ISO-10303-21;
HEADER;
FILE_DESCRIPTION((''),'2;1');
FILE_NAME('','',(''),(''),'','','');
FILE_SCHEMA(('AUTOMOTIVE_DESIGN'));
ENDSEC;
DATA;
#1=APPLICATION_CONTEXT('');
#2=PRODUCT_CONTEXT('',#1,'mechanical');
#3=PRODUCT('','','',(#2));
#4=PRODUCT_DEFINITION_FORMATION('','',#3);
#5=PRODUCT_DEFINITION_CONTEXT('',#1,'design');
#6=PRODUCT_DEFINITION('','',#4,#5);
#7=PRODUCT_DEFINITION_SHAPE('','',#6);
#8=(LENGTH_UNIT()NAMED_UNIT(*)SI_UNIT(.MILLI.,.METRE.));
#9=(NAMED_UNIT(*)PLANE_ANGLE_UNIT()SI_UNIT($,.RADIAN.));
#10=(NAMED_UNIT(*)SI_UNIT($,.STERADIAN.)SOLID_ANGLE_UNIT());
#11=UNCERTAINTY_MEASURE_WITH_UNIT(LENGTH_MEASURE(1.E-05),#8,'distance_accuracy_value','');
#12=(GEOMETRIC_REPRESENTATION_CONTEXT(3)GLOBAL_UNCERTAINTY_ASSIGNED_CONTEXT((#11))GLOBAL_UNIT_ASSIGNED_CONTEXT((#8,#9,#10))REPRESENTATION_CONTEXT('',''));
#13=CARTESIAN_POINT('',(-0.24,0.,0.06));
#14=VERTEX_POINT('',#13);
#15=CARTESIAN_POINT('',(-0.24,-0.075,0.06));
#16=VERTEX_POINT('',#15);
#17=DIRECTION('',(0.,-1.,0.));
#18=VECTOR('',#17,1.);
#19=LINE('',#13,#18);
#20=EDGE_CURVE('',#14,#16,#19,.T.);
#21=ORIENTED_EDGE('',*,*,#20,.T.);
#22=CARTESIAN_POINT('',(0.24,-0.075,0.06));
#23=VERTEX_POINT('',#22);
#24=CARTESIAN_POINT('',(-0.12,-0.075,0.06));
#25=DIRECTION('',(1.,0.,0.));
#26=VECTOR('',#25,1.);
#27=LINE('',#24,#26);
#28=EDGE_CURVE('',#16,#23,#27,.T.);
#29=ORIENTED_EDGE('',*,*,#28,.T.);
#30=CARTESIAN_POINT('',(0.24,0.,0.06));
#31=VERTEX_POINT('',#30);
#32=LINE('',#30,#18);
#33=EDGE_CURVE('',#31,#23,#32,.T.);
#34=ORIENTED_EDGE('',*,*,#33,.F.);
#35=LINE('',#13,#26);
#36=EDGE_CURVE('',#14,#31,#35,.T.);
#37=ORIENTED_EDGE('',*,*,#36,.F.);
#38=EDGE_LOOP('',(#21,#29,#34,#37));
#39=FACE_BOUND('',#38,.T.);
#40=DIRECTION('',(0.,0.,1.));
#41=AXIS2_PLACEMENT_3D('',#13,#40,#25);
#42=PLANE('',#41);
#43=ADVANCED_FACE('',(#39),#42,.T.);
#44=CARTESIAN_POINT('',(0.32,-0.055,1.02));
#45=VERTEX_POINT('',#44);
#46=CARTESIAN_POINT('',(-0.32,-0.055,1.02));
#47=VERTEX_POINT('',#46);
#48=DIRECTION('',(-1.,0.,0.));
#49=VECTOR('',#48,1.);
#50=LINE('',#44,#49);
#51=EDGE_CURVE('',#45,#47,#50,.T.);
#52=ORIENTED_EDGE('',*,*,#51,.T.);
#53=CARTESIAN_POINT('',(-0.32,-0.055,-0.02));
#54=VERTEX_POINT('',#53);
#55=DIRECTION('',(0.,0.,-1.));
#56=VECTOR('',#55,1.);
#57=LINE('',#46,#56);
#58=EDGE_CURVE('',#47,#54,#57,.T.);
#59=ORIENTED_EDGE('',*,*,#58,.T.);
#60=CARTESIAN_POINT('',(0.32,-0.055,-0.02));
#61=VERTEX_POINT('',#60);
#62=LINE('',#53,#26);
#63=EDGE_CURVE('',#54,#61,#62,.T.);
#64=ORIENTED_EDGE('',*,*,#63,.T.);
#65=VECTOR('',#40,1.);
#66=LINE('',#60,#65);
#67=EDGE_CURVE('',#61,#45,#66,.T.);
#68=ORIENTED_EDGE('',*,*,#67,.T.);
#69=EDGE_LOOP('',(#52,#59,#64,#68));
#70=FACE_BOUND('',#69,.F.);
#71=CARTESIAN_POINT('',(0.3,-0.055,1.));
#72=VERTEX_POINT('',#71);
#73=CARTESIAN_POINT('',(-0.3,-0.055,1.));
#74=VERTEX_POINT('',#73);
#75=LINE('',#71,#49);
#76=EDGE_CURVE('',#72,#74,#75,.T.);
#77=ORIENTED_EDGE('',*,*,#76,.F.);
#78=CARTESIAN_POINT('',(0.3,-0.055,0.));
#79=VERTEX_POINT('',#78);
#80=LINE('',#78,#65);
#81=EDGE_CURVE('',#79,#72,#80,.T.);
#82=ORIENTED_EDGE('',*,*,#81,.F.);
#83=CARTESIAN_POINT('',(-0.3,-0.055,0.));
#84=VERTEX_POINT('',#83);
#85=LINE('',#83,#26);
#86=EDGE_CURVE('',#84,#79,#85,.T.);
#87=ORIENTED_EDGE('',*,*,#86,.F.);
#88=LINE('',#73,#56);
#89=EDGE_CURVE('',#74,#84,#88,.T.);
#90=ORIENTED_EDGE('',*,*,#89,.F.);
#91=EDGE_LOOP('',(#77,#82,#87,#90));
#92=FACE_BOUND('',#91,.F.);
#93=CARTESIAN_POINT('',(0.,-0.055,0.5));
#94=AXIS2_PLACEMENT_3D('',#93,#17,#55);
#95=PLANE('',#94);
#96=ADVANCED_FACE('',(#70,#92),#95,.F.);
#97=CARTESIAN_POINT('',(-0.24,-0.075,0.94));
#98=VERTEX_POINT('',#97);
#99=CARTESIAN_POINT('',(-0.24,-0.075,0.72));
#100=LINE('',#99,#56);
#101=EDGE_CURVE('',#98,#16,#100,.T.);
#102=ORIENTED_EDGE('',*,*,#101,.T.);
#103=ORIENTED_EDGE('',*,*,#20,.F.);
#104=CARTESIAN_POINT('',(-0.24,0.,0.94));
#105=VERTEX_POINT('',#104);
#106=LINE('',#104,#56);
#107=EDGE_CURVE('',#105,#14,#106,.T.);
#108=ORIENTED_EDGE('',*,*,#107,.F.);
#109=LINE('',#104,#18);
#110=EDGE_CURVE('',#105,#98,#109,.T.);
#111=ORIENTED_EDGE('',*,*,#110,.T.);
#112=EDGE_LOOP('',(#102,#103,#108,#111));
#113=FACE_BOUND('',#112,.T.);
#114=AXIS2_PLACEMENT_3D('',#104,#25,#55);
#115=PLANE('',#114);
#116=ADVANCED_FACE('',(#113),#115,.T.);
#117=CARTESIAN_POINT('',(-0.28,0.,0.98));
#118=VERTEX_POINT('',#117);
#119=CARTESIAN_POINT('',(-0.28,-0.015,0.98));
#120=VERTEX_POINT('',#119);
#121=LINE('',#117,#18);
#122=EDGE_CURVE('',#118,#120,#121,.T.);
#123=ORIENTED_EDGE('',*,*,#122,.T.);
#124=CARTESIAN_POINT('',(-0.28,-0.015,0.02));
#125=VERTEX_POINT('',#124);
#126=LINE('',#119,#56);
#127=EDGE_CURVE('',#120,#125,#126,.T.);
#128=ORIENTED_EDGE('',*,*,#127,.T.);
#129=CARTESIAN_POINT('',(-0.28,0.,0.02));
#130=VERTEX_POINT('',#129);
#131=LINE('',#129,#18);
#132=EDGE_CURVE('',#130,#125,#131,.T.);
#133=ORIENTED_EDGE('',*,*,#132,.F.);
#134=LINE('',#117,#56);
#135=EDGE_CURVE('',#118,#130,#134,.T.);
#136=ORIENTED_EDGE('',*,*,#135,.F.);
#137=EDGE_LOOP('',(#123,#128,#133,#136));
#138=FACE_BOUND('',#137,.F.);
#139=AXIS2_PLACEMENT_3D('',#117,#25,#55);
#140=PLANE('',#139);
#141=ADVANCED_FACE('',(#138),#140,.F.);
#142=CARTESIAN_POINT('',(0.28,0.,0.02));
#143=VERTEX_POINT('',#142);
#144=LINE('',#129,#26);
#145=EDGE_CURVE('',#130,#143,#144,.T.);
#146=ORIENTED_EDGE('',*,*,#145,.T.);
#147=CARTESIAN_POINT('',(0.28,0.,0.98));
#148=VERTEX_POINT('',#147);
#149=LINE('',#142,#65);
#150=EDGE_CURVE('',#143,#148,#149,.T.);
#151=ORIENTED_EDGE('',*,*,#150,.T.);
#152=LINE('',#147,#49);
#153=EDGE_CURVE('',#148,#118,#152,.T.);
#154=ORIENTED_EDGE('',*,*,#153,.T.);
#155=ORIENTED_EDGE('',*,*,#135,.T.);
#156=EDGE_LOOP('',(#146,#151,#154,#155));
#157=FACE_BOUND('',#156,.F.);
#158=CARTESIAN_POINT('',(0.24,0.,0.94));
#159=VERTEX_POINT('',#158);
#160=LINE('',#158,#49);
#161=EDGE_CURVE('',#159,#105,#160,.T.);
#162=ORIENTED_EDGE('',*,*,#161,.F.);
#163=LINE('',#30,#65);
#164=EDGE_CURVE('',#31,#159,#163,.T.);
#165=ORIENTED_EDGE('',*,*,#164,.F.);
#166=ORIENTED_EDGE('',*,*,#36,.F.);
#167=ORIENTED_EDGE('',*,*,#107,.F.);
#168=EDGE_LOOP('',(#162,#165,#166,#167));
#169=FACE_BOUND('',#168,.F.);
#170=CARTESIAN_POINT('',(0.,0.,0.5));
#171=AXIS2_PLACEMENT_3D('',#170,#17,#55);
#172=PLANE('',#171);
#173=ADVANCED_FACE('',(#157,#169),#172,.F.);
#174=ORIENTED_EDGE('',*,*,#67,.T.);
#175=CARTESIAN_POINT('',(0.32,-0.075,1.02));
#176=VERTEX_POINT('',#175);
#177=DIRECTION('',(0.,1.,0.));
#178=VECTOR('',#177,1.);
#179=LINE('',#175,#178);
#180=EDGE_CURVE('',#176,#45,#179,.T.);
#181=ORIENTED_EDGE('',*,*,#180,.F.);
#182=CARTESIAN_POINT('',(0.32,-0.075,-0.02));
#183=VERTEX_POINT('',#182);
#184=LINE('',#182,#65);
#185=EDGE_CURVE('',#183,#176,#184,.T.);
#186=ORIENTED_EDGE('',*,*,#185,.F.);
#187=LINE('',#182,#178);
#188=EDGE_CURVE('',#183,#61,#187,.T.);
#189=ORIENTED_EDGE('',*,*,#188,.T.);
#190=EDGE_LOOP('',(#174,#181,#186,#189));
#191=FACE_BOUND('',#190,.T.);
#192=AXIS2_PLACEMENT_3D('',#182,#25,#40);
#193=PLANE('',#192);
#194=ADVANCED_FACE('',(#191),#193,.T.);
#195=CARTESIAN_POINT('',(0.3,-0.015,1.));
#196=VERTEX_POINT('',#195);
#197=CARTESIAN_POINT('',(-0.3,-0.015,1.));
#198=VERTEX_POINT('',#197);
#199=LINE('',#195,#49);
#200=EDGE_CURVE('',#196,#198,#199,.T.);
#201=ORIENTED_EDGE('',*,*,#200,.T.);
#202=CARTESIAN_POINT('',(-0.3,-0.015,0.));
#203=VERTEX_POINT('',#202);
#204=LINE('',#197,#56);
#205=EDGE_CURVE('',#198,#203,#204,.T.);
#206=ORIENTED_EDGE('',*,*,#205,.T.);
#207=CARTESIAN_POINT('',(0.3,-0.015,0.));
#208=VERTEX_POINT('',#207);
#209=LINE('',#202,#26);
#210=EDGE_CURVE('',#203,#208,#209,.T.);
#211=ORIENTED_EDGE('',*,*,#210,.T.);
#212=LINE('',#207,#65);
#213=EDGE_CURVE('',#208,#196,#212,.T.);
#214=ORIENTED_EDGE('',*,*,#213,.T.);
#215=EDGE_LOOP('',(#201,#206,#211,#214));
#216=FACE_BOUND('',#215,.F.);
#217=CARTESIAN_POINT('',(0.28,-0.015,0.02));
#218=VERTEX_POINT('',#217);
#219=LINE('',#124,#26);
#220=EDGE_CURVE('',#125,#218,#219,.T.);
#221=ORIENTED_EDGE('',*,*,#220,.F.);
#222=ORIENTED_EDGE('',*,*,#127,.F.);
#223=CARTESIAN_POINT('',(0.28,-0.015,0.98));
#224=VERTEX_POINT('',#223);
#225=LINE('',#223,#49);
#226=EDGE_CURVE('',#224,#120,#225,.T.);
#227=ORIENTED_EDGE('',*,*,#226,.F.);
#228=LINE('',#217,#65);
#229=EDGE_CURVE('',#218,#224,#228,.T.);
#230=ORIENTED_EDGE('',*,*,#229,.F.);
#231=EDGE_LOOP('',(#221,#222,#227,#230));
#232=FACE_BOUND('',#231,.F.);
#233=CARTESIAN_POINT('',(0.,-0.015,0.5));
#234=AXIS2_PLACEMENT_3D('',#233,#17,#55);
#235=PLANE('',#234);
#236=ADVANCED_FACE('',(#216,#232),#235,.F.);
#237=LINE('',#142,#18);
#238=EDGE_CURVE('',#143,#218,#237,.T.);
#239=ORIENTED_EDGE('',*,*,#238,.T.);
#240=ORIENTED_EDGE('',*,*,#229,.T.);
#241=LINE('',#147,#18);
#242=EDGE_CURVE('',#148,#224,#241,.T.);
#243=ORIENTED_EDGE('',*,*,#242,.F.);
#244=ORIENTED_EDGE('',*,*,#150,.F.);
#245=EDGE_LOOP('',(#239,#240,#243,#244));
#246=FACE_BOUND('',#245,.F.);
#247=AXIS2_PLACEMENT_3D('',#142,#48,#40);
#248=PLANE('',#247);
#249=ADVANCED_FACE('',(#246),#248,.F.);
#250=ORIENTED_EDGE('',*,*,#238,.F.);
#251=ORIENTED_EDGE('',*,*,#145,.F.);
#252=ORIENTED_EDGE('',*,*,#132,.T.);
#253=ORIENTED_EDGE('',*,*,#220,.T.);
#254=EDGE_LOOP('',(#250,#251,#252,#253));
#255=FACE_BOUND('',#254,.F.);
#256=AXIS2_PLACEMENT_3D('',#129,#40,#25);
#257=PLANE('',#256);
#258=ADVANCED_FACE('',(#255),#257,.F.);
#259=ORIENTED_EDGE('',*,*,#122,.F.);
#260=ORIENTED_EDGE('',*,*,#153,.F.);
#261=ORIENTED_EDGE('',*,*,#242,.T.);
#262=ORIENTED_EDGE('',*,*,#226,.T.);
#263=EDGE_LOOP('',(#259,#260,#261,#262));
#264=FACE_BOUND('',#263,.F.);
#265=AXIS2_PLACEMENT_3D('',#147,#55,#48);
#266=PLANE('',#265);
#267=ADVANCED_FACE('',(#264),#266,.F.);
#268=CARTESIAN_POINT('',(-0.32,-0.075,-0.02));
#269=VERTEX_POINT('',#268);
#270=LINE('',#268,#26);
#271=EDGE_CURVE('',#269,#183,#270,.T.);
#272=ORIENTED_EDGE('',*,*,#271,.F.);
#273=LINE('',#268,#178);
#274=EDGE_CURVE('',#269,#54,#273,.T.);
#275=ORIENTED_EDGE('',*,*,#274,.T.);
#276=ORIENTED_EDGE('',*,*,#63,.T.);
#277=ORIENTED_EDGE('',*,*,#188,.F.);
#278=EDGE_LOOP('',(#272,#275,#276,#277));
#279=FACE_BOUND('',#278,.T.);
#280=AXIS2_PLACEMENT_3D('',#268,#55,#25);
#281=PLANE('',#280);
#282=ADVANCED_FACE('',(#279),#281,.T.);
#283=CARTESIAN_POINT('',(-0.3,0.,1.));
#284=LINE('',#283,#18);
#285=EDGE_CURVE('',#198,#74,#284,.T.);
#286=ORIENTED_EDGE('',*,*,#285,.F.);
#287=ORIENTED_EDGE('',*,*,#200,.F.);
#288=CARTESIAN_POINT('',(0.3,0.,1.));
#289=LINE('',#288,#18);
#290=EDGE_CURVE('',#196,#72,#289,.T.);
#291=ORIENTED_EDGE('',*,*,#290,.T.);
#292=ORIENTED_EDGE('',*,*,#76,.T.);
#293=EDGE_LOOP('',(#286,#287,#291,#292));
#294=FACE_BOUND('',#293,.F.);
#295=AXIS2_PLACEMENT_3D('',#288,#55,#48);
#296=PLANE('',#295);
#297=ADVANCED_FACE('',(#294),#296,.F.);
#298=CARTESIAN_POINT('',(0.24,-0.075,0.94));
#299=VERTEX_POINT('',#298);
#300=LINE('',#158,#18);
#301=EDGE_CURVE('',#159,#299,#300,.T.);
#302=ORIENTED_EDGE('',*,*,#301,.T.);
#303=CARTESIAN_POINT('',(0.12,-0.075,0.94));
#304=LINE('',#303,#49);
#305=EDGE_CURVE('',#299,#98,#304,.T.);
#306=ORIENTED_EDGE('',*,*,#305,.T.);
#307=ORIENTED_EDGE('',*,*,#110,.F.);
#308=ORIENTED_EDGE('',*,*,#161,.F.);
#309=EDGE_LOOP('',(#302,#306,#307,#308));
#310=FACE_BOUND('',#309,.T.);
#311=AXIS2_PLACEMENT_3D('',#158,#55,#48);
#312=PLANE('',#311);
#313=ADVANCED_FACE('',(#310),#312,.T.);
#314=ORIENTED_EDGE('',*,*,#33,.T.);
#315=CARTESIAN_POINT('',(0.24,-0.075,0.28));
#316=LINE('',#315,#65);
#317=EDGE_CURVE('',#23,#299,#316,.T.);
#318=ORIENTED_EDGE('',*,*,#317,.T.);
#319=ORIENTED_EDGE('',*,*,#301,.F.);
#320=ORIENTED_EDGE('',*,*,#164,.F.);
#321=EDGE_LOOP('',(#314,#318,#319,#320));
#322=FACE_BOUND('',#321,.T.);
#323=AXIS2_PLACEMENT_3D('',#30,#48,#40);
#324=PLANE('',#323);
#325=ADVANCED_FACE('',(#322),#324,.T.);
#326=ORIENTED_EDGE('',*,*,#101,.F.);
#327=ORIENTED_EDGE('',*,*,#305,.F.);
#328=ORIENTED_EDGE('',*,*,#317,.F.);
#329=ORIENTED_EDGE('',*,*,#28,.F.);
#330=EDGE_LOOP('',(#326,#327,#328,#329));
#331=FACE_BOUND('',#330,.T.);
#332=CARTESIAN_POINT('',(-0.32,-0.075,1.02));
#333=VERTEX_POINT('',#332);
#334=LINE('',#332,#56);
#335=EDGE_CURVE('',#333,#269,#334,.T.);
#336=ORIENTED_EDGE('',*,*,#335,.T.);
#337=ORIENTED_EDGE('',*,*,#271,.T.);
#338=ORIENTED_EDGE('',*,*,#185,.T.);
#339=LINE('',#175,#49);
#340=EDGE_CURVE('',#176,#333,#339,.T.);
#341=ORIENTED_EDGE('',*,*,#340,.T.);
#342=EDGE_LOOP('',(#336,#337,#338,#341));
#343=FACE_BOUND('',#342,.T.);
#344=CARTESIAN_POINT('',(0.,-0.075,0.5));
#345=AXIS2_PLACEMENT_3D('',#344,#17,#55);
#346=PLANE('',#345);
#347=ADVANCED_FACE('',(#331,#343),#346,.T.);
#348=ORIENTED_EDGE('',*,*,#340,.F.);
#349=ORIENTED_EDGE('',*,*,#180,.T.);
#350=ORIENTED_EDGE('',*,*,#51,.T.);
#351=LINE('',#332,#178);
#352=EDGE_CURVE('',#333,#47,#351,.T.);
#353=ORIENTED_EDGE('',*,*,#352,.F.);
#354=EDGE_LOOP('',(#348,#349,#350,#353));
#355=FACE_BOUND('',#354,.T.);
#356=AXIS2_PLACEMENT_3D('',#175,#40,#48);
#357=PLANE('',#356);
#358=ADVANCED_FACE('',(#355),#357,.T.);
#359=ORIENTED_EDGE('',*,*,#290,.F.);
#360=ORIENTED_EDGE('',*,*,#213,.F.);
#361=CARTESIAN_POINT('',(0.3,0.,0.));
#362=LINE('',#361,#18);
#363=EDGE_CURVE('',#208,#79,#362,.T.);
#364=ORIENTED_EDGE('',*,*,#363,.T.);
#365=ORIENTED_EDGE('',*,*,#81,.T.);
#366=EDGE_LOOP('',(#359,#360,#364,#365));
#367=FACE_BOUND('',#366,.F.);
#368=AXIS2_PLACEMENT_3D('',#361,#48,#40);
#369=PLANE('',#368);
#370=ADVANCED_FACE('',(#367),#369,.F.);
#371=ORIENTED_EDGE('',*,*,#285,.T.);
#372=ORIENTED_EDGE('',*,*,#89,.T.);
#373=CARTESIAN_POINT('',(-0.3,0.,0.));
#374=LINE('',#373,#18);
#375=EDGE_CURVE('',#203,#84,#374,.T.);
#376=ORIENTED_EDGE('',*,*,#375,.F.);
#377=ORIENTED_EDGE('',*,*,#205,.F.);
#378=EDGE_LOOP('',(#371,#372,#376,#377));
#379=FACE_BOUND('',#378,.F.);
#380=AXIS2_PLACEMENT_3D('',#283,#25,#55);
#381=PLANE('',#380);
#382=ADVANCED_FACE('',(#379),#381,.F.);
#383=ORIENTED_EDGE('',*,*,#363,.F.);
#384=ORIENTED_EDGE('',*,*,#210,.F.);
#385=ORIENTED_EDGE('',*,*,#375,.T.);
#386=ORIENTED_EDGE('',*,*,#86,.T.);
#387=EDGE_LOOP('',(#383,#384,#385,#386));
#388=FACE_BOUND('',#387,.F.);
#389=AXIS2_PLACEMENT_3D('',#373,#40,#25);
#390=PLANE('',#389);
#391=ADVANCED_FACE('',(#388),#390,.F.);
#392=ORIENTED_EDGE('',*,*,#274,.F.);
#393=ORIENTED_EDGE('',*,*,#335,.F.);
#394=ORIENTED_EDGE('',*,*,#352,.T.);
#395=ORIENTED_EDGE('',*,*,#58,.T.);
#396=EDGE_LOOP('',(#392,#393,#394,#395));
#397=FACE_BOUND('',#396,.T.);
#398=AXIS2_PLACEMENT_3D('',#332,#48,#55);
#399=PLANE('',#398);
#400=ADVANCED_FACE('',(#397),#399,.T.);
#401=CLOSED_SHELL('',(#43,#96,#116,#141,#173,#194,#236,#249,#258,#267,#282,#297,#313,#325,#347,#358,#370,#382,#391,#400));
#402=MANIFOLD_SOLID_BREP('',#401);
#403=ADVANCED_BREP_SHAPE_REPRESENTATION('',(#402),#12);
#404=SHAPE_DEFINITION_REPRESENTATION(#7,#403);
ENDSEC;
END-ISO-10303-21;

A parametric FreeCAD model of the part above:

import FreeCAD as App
import Part
import Sketcher


def add_polygon(sketch, points):
    """Adds a closed chain of lines whose ends are joined by coincident constraints."""
    first, n = sketch.GeometryCount, len(points)
    for a, b in zip(points, points[1:] + points[:1]):
        sketch.addGeometry(Part.LineSegment(App.Vector(*a, 0), App.Vector(*b, 0)), False)
    for i in range(n):
        sketch.addConstraint(Sketcher.Constraint("Coincident", first + i, 2, first + (i + 1) % n, 1))

doc = App.newDocument("Part")
body = doc.addObject("PartDesign::Body", "Body")

# Sketch on XZ plane
sketch1 = body.newObject("Sketcher::SketchObject", "Sketch")
sketch1.AttachmentSupport = (doc.getObject("XZ_Plane"), [""])
sketch1.MapMode = "FlatFace"
add_polygon(sketch1, [(-0.3, 1), (-0.3, 0), (0.3, 0), (0.3, 1)])  # lines 0-3
sketch1.addConstraint(Sketcher.Constraint("Vertical", 0))
sketch1.addConstraint(Sketcher.Constraint("Horizontal", 1))
sketch1.addConstraint(Sketcher.Constraint("Vertical", 2))
sketch1.addConstraint(Sketcher.Constraint("Horizontal", 3))
sketch1.addConstraint(Sketcher.Constraint("Symmetric", 0, 2, 1, 2, -1, 1))
sketch1.addConstraint(Sketcher.Constraint("DistanceX", 0, 2, -1, 1, 0.3))
sketch1.addConstraint(Sketcher.Constraint("DistanceY", 0, 2, 0, 1, 1.0))
pad1 = body.newObject("PartDesign::Pad", "Pad")
pad1.Profile = sketch1
pad1.Length = 0.075

# Sketch on XZ plane
sketch2 = body.newObject("Sketcher::SketchObject", "Sketch001")
sketch2.AttachmentSupport = (doc.getObject("XZ_Plane"), [""])
sketch2.MapMode = "FlatFace"
add_polygon(sketch2, [(-0.24, 0.94), (0.24, 0.94), (0.24, 0.06), (-0.24, 0.06)])  # lines 0-3
sketch2.addConstraint(Sketcher.Constraint("Horizontal", 0))
sketch2.addConstraint(Sketcher.Constraint("Vertical", 1))
sketch2.addConstraint(Sketcher.Constraint("Horizontal", 2))
sketch2.addConstraint(Sketcher.Constraint("Vertical", 3))
sketch2.addConstraint(Sketcher.Constraint("DistanceX", 0, 1, 0, 2, 0.48))
sketch2.addConstraint(Sketcher.Constraint("DistanceY", 1, 2, 1, 1, 0.88))
sketch2.addConstraint(Sketcher.Constraint("DistanceX", -1, 1, 0, 2, 0.24))
sketch2.addConstraint(Sketcher.Constraint("DistanceY", -1, 1, 0, 2, 0.94))
pocket1 = body.newObject("PartDesign::Pocket", "Pocket")
pocket1.Profile = sketch2
pocket1.Type = "UpToFirst"
pocket1.Reversed = True

# Sketch on XZ plane
sketch3 = body.newObject("Sketcher::SketchObject", "Sketch002")
sketch3.AttachmentSupport = (doc.getObject("XZ_Plane"), [""])
sketch3.MapMode = "FlatFace"
add_polygon(sketch3, [(0.3, 1), (0.3, 0), (-0.3, 0), (-0.3, 1)])  # lines 0-3
add_polygon(sketch3, [(-0.28, 0.02), (0.28, 0.02), (0.28, 0.98), (-0.28, 0.98)])  # lines 4-7
sketch3.addConstraint(Sketcher.Constraint("Vertical", 0))
sketch3.addConstraint(Sketcher.Constraint("Horizontal", 1))
sketch3.addConstraint(Sketcher.Constraint("Vertical", 2))
sketch3.addConstraint(Sketcher.Constraint("Horizontal", 3))
sketch3.addConstraint(Sketcher.Constraint("Horizontal", 4))
sketch3.addConstraint(Sketcher.Constraint("Vertical", 5))
sketch3.addConstraint(Sketcher.Constraint("Horizontal", 6))
sketch3.addConstraint(Sketcher.Constraint("Vertical", 7))
sketch3.addConstraint(Sketcher.Constraint("Symmetric", 0, 2, 1, 2, -1, 1))
sketch3.addConstraint(Sketcher.Constraint("DistanceY", 0, 2, 0, 1, 1.0))
sketch3.addConstraint(Sketcher.Constraint("DistanceX", 1, 2, 1, 1, 0.6))
sketch3.addConstraint(Sketcher.Constraint("DistanceX", 4, 1, 4, 2, 0.56))
sketch3.addConstraint(Sketcher.Constraint("DistanceY", 5, 1, 5, 2, 0.96))
sketch3.addConstraint(Sketcher.Constraint("DistanceX", -1, 1, 4, 2, 0.28))
sketch3.addConstraint(Sketcher.Constraint("DistanceY", -1, 1, 4, 2, 0.02))
pocket2 = body.newObject("PartDesign::Pocket", "Pocket001")
pocket2.Profile = sketch3
pocket2.Length = 0.015
pocket2.Reversed = True

# Sketch on XZ plane
sketch4 = body.newObject("Sketcher::SketchObject", "Sketch003")
sketch4.AttachmentSupport = (doc.getObject("XZ_Plane"), [""])
sketch4.MapMode = "FlatFace"
sketch4.AttachmentOffset = App.Placement(App.Vector(0, 0, 0.075), App.Rotation())
add_polygon(sketch4, [(0.32, 1.02), (-0.32, 1.02), (-0.32, -0.02), (0.32, -0.02)])  # lines 0-3
add_polygon(sketch4, [(-0.3, 1), (0.3, 1), (0.3, 0), (-0.3, 0)])  # lines 4-7
sketch4.addConstraint(Sketcher.Constraint("Horizontal", 0))
sketch4.addConstraint(Sketcher.Constraint("Vertical", 1))
sketch4.addConstraint(Sketcher.Constraint("Horizontal", 2))
sketch4.addConstraint(Sketcher.Constraint("Vertical", 3))
sketch4.addConstraint(Sketcher.Constraint("Horizontal", 4))
sketch4.addConstraint(Sketcher.Constraint("Vertical", 5))
sketch4.addConstraint(Sketcher.Constraint("Horizontal", 6))
sketch4.addConstraint(Sketcher.Constraint("Vertical", 7))
sketch4.addConstraint(Sketcher.Constraint("Symmetric", 5, 2, 6, 2, -1, 1))
sketch4.addConstraint(Sketcher.Constraint("DistanceY", 5, 2, 5, 1, 1.0))
sketch4.addConstraint(Sketcher.Constraint("DistanceX", 4, 1, 4, 2, 0.6))
sketch4.addConstraint(Sketcher.Constraint("DistanceX", 0, 2, 0, 1, 0.64))
sketch4.addConstraint(Sketcher.Constraint("DistanceY", 1, 2, 1, 1, 1.04))
sketch4.addConstraint(Sketcher.Constraint("DistanceX", 0, 2, -1, 1, 0.32))
sketch4.addConstraint(Sketcher.Constraint("DistanceY", -1, 1, 0, 2, 1.02))
pad2 = body.newObject("PartDesign::Pad", "Pad001")
pad2.Profile = sketch4
pad2.Length = 0.02
pad2.Reversed = True

doc.recompute()
